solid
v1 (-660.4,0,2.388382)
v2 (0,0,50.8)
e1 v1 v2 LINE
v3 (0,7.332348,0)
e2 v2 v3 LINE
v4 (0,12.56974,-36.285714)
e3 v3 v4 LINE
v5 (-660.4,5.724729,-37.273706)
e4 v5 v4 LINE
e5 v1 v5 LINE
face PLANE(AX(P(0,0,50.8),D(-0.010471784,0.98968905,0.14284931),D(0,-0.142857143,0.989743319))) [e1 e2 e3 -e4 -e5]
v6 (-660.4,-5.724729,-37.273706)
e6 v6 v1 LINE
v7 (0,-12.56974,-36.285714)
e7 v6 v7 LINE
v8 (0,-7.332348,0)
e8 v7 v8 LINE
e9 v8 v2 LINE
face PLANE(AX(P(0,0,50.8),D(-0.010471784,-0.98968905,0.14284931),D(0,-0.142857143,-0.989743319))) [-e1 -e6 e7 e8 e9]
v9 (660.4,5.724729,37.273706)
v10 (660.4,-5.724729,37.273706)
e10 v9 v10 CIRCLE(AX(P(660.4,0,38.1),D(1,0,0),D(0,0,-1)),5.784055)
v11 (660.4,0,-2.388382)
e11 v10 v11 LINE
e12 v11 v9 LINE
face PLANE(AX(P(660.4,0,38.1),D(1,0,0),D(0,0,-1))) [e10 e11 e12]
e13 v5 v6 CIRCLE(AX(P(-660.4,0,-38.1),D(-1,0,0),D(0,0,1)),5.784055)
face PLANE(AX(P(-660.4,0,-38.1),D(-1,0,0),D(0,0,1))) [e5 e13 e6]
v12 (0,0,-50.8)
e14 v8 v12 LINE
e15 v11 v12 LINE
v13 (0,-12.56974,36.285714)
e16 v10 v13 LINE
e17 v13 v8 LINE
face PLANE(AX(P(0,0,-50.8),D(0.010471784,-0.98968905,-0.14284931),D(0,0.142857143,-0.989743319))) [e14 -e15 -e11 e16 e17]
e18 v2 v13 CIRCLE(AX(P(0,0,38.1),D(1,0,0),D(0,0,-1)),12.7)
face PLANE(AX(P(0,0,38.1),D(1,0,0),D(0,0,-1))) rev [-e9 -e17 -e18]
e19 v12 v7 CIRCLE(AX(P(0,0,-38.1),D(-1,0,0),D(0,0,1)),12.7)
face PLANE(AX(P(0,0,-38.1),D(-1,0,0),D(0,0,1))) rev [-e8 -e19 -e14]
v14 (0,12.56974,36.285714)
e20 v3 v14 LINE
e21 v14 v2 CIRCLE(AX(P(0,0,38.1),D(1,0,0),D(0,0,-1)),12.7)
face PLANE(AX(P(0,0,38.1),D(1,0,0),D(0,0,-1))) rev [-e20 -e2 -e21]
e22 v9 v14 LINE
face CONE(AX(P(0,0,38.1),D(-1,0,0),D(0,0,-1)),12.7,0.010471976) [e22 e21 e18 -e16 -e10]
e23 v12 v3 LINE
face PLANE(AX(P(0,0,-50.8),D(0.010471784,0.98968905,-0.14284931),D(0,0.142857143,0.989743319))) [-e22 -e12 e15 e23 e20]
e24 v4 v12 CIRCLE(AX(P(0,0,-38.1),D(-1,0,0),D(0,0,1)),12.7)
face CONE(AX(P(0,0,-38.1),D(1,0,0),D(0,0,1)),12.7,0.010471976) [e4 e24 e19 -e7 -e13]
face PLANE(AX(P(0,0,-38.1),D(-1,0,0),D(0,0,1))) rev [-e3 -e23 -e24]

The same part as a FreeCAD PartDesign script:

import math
import FreeCAD as App
import Part
import Sketcher

V = App.Vector
Q = App.Units.Quantity

doc = App.newDocument("Part")
body = doc.addObject("PartDesign::Body", "Body")

# Sketch on YZ plane
sketch1 = doc.addObject("Sketcher::SketchObject", "Sketch")
body.addObject(sketch1)
sketch1.AttachmentSupport = (doc.YZ_Plane, [""])
sketch1.MapMode = "FlatFace"
sketch1.addGeometry(Part.LineSegment(V(0, -51, 0), V(13, 36, 0)), False)
sketch1.addGeometry(Part.ArcOfCircle(Part.Circle(V(0, 38, 0), V(0, 0, 1), 13), math.radians(-8), math.radians(188)), False)
sketch1.addGeometry(Part.LineSegment(V(-13, 36, 0), V(0, -51, 0)), False)
sketch1.addConstraint(Sketcher.Constraint("Tangent", 0, 2, 1, 1))
sketch1.addConstraint(Sketcher.Constraint("Tangent", 1, 2, 2, 1))
sketch1.addConstraint(Sketcher.Constraint("Coincident", 2, 2, 0, 1))
sketch1.addConstraint(Sketcher.Constraint("Symmetric", 0, 2, 1, 2, -2))
sketch1.addConstraint(Sketcher.Constraint("Radius", 1, Q("0.5 in")))
sketch1.addConstraint(Sketcher.Constraint("DistanceY", 2, 2, -1, 1, Q("2 in")))
sketch1.addConstraint(Sketcher.Constraint("DistanceY", -1, 1, 1, 3, Q("1.5 in")))
pad1 = doc.addObject("PartDesign::Pad", "Pad")
body.addObject(pad1)
pad1.Profile = sketch1
pad1.Length = Q("26 in")
pad1.TaperAngle = -0.6
doc.recompute()

polarpattern = doc.addObject("PartDesign::PolarPattern", "PolarPattern")
body.addObject(polarpattern)
polarpattern.Originals = [pad1]
polarpattern.Axis = (doc.Y_Axis, [""])
polarpattern.Angle = 360
polarpattern.Occurrences = 2
body.Tip = polarpattern

doc.recompute()
